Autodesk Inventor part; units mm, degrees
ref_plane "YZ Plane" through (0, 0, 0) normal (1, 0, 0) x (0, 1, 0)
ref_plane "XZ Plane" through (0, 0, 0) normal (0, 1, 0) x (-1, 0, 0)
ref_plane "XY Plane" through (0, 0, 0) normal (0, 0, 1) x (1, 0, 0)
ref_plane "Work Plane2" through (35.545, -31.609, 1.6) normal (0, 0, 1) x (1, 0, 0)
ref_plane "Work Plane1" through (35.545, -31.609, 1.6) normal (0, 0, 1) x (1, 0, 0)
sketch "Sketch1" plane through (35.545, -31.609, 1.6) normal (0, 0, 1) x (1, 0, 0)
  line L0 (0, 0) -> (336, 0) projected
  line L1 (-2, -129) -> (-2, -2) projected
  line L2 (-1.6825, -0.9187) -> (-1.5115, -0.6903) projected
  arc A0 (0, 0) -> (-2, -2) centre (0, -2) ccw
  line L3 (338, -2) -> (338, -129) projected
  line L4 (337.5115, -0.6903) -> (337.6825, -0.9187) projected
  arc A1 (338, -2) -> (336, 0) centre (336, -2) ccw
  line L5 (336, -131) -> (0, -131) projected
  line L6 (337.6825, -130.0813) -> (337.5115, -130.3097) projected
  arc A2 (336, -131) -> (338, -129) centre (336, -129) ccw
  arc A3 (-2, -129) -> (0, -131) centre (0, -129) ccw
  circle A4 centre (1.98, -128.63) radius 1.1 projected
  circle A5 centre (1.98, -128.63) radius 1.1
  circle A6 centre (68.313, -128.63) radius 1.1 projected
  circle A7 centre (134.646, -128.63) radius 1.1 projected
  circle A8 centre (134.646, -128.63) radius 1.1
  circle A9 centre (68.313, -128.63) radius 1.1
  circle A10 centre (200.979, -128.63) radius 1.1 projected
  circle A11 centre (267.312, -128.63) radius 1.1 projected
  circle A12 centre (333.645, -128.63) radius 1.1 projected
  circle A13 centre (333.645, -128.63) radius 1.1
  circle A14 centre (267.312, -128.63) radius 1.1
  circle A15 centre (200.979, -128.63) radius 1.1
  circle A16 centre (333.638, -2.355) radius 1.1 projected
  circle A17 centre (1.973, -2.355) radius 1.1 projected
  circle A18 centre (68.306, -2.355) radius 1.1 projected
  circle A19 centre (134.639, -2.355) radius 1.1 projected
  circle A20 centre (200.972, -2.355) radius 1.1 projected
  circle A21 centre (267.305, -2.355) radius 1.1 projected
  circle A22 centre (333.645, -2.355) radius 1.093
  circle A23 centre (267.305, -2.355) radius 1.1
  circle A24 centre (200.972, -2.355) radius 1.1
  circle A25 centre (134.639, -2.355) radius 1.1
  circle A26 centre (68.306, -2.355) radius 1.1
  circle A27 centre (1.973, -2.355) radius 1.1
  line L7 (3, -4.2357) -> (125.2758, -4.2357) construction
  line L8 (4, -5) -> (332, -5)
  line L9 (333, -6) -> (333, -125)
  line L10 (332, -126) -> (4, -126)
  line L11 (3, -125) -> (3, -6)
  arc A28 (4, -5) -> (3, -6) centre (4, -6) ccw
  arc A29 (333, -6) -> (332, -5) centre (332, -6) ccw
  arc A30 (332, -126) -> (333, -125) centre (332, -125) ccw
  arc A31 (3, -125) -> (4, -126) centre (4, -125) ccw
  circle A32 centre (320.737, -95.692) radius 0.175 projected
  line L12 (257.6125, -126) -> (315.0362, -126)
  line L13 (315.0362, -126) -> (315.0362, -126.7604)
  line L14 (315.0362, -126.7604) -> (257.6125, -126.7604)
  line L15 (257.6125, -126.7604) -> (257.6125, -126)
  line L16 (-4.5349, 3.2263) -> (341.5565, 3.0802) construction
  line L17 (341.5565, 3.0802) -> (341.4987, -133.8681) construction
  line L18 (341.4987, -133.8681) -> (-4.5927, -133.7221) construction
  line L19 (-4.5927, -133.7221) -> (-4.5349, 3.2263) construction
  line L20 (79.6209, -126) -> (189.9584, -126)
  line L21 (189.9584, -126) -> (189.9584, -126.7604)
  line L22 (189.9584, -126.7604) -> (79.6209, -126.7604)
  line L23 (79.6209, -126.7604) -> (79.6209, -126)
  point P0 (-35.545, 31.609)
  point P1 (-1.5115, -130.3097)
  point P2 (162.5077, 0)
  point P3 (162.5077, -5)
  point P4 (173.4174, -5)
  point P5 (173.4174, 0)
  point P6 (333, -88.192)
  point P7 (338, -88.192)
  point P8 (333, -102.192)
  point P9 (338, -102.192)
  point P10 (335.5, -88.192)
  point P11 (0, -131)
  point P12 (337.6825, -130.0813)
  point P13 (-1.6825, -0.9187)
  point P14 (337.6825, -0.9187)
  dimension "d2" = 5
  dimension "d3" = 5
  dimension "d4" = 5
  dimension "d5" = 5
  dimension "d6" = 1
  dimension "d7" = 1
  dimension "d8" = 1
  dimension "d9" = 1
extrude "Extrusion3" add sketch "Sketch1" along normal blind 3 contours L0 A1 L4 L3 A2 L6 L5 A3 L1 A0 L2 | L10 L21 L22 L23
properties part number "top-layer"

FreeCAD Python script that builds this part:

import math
import FreeCAD as App
import Part
import Sketcher
from FreeCAD import Vector
Q = App.Units.Quantity

doc = App.newDocument("Part")
body = doc.addObject("PartDesign::Body", "Body")

sketch1 = body.newObject("Sketcher::SketchObject", "Sketch")
sketch1.AttachmentSupport = (doc.getObject("XY_Plane"), [""])
sketch1.MapMode = "FlatFace"
sketch1.AttachmentOffset = App.Placement(Vector(0, 0, 1.6), App.Rotation())
sketch1.addGeometry([
    Part.LineSegment(Vector(371.55, -31.61, 0), Vector(35.55, -31.61, 0)),
    Part.ArcOfCircle(Part.Circle(Vector(35.55, -33.61, 0), Vector(0, 0, 1), 2), math.radians(90), math.radians(139)),
    Part.LineSegment(Vector(34.03, -32.3, 0), Vector(33.86, -32.53, 0)),
    Part.ArcOfCircle(Part.Circle(Vector(35.55, -33.61, 0), Vector(0, 0, 1), 2), math.radians(147), math.radians(180)),
    Part.LineSegment(Vector(33.55, -33.61, 0), Vector(33.55, -160.61, 0)),
    Part.ArcOfCircle(Part.Circle(Vector(35.55, -160.61, 0), Vector(0, 0, 1), 2), math.radians(180), math.radians(270)),
    Part.LineSegment(Vector(35.55, -162.61, 0), Vector(371.55, -162.61, 0)),
    Part.ArcOfCircle(Part.Circle(Vector(371.55, -160.61, 0), Vector(0, 0, 1), 2), math.radians(-90), math.radians(-41)),
    Part.LineSegment(Vector(373.06, -161.92, 0), Vector(373.23, -161.69, 0)),
    Part.ArcOfCircle(Part.Circle(Vector(371.55, -160.61, 0), Vector(0, 0, 1), 2), math.radians(-33), math.radians(0)),
    Part.LineSegment(Vector(373.55, -160.61, 0), Vector(373.55, -33.61, 0)),
    Part.ArcOfCircle(Part.Circle(Vector(371.55, -33.61, 0), Vector(0, 0, 1), 2), math.radians(0), math.radians(33)),
    Part.LineSegment(Vector(373.23, -32.53, 0), Vector(373.06, -32.3, 0)),
    Part.ArcOfCircle(Part.Circle(Vector(371.55, -33.61, 0), Vector(0, 0, 1), 2), math.radians(41), math.radians(90)),
    Part.Circle(Vector(37.52, -160.24, 0), Vector(0, 0, 1), 1.1),
    Part.Circle(Vector(103.86, -160.24, 0), Vector(0, 0, 1), 1.1),
    Part.Circle(Vector(170.19, -160.24, 0), Vector(0, 0, 1), 1.1),
    Part.Circle(Vector(236.52, -160.24, 0), Vector(0, 0, 1), 1.1),
    Part.Circle(Vector(302.86, -160.24, 0), Vector(0, 0, 1), 1.1),
    Part.Circle(Vector(369.19, -160.24, 0), Vector(0, 0, 1), 1.1),
    Part.ArcOfCircle(Part.Circle(Vector(39.55, -37.61, 0), Vector(0, 0, 1), 1), math.radians(90), math.radians(180)),
    Part.LineSegment(Vector(39.55, -36.61, 0), Vector(367.55, -36.61, 0)),
    Part.ArcOfCircle(Part.Circle(Vector(367.55, -37.61, 0), Vector(0, 0, 1), 1), math.radians(0), math.radians(90)),
    Part.LineSegment(Vector(368.55, -37.61, 0), Vector(368.55, -156.61, 0)),
    Part.ArcOfCircle(Part.Circle(Vector(367.55, -156.61, 0), Vector(0, 0, 1), 1), math.radians(-90), math.radians(0)),
    Part.LineSegment(Vector(367.55, -157.61, 0), Vector(350.58, -157.61, 0)),
    Part.LineSegment(Vector(350.58, -157.61, 0), Vector(350.58, -158.37, 0)),
    Part.LineSegment(Vector(350.58, -158.37, 0), Vector(293.16, -158.37, 0)),
    Part.LineSegment(Vector(293.16, -158.37, 0), Vector(293.16, -157.61, 0)),
    Part.LineSegment(Vector(293.16, -157.61, 0), Vector(39.55, -157.61, 0)),
    Part.ArcOfCircle(Part.Circle(Vector(39.55, -156.61, 0), Vector(0, 0, 1), 1), math.radians(180), math.radians(270)),
    Part.LineSegment(Vector(38.55, -156.61, 0), Vector(38.55, -37.61, 0)),
    Part.Circle(Vector(37.52, -33.96, 0), Vector(0, 0, 1), 1.1),
    Part.Circle(Vector(103.85, -33.96, 0), Vector(0, 0, 1), 1.1),
    Part.Circle(Vector(170.18, -33.96, 0), Vector(0, 0, 1), 1.1),
    Part.Circle(Vector(236.52, -33.96, 0), Vector(0, 0, 1), 1.1),
    Part.Circle(Vector(302.85, -33.96, 0), Vector(0, 0, 1), 1.1),
    Part.Circle(Vector(369.18, -33.96, 0), Vector(0, 0, 1), 1.1),
], False)
sketch1.addConstraint([
    Sketcher.Constraint("Tangent", 0, 2, 1, 1),
    Sketcher.Constraint("Coincident", 1, 2, 2, 1),
    Sketcher.Constraint("Coincident", 2, 2, 3, 1),
    Sketcher.Constraint("Tangent", 3, 2, 4, 1),
    Sketcher.Constraint("Tangent", 4, 2, 5, 1),
    Sketcher.Constraint("Tangent", 5, 2, 6, 1),
    Sketcher.Constraint("Tangent", 6, 2, 7, 1),
    Sketcher.Constraint("Coincident", 7, 2, 8, 1),
    Sketcher.Constraint("Coincident", 8, 2, 9, 1),
    Sketcher.Constraint("Tangent", 9, 2, 10, 1),
    Sketcher.Constraint("Tangent", 10, 2, 11, 1),
    Sketcher.Constraint("Coincident", 11, 2, 12, 1),
    Sketcher.Constraint("Coincident", 12, 2, 13, 1),
    Sketcher.Constraint("Tangent", 13, 2, 0, 1),
    Sketcher.Constraint("Tangent", 20, 1, 21, 1),
    Sketcher.Constraint("Tangent", 21, 2, 22, 2),
    Sketcher.Constraint("Tangent", 22, 1, 23, 1),
    Sketcher.Constraint("Tangent", 23, 2, 24, 2),
    Sketcher.Constraint("Tangent", 24, 1, 25, 1),
    Sketcher.Constraint("Coincident", 25, 2, 26, 1),
    Sketcher.Constraint("Coincident", 26, 2, 27, 1),
    Sketcher.Constraint("Coincident", 27, 2, 28, 1),
    Sketcher.Constraint("Coincident", 28, 2, 29, 1),
    Sketcher.Constraint("Tangent", 29, 2, 30, 2),
    Sketcher.Constraint("Tangent", 30, 1, 31, 1),
    Sketcher.Constraint("Tangent", 31, 2, 20, 2),
    Sketcher.Constraint("Horizontal", 0),
    Sketcher.Constraint("Vertical", 4),
    Sketcher.Constraint("Horizontal", 6),
    Sketcher.Constraint("Vertical", 10),
    Sketcher.Constraint("Horizontal", 21),
    Sketcher.Constraint("Vertical", 23),
    Sketcher.Constraint("Horizontal", 25),
    Sketcher.Constraint("Vertical", 26),
    Sketcher.Constraint("Horizontal", 27),
    Sketcher.Constraint("Vertical", 28),
    Sketcher.Constraint("Horizontal", 29),
    Sketcher.Constraint("Vertical", 31),
    Sketcher.Constraint("Coincident", 3, 3, 1, 3),
    Sketcher.Constraint("Coincident", 9, 3, 7, 3),
    Sketcher.Constraint("Coincident", 13, 3, 11, 3),
    Sketcher.Constraint("Equal", 1, 3),
    Sketcher.Constraint("Equal", 3, 5),
    Sketcher.Constraint("Equal", 5, 7),
    Sketcher.Constraint("Equal", 7, 9),
    Sketcher.Constraint("Equal", 9, 11),
    Sketcher.Constraint("Equal", 11, 13),
    Sketcher.Constraint("Equal", 14, 15),
    Sketcher.Constraint("Equal", 15, 16),
    Sketcher.Constraint("Equal", 16, 17),
    Sketcher.Constraint("Equal", 17, 18),
    Sketcher.Constraint("Equal", 18, 19),
    Sketcher.Constraint("Equal", 20, 22),
    Sketcher.Constraint("Equal", 22, 24),
    Sketcher.Constraint("Equal", 24, 30),
    Sketcher.Constraint("Equal", 19, 32),
    Sketcher.Constraint("Equal", 32, 33),
    Sketcher.Constraint("Equal", 33, 34),
    Sketcher.Constraint("Equal", 34, 35),
    Sketcher.Constraint("Equal", 35, 36),
    Sketcher.Constraint("Equal", 36, 37),
    Sketcher.Constraint("Parallel", 2, 8),
    Sketcher.Constraint("Horizontal", 14, 3, 15, 3),
    Sketcher.Constraint("Horizontal", 15, 3, 16, 3),
    Sketcher.Constraint("Horizontal", 16, 3, 17, 3),
    Sketcher.Constraint("Horizontal", 17, 3, 18, 3),
    Sketcher.Constraint("Horizontal", 18, 3, 19, 3),
    Sketcher.Constraint("Horizontal", 24, 3, 30, 3),
    Sketcher.Constraint("Horizontal", 32, 3, 33, 3),
    Sketcher.Constraint("Horizontal", 33, 3, 34, 3),
    Sketcher.Constraint("Horizontal", 34, 3, 35, 3),
    Sketcher.Constraint("Horizontal", 35, 3, 36, 3),
    Sketcher.Constraint("Horizontal", 36, 3, 37, 3),
    Sketcher.Constraint("Horizontal", 2, 2, 11, 2),
    Sketcher.Constraint("Horizontal", 1, 2, 12, 2),
    Sketcher.Constraint("Vertical", 8, 2, 11, 2),
    Sketcher.Constraint("Radius", 20, Q("1 mm")),
    Sketcher.Constraint("Radius", 1, Q("2 mm")),
    Sketcher.Constraint("DistanceY", 20, 1, 0, 2, Q("5 mm")),
    Sketcher.Constraint("DistanceX", 23, 2, 9, 2, Q("5 mm")),
    Sketcher.Constraint("DistanceY", 5, 2, 29, 2, Q("5 mm")),
    Sketcher.Constraint("DistanceX", 4, 2, 30, 1, Q("5 mm")),
    Sketcher.Constraint("Diameter", 14, Q("2.2 mm")),
    Sketcher.Constraint("DistanceX", 0, 2, 0, 1, Q("336 mm")),
    Sketcher.Constraint("DistanceY", 4, 2, 4, 1, Q("127 mm")),
    Sketcher.Constraint("DistanceX", -1, 1, 19, 3, Q("369.19 mm")),
    Sketcher.Constraint("DistanceX", -1, 1, 36, 3, Q("302.85 mm")),
    Sketcher.Constraint("DistanceX", 5, 3, 14, 3, Q("1.98 mm")),
    Sketcher.Constraint("DistanceY", 5, 3, 14, 3, Q("0.37 mm")),
    Sketcher.Constraint("DistanceX", 25, 2, 25, 1, Q("16.9638 mm")),
    Sketcher.Constraint("DistanceX", 27, 2, 27, 1, Q("57.4237 mm")),
    Sketcher.Constraint("DistanceY", 26, 2, 26, 1, Q("0.7604 mm")),
    Sketcher.Constraint("DistanceX", -1, 1, 1, 3, Q("35.545 mm")),
    Sketcher.Constraint("DistanceY", 1, 3, -1, 1, Q("33.609 mm")),
    Sketcher.Constraint("DistanceX", -1, 1, 15, 3, Q("103.858 mm")),
    Sketcher.Constraint("DistanceX", -1, 1, 16, 3, Q("170.191 mm")),
    Sketcher.Constraint("DistanceX", -1, 1, 17, 3, Q("236.524 mm")),
    Sketcher.Constraint("DistanceX", -1, 1, 18, 3, Q("302.857 mm")),
    Sketcher.Constraint("DistanceX", -1, 1, 32, 3, Q("37.518 mm")),
    Sketcher.Constraint("DistanceY", 32, 3, -1, 1, Q("33.964 mm")),
    Sketcher.Constraint("DistanceX", -1, 1, 33, 3, Q("103.851 mm")),
    Sketcher.Constraint("DistanceX", -1, 1, 34, 3, Q("170.184 mm")),
    Sketcher.Constraint("DistanceX", -1, 1, 35, 3, Q("236.517 mm")),
    Sketcher.Constraint("DistanceX", -1, 1, 37, 3, Q("369.183 mm")),
    Sketcher.Constraint("DistanceX", 2, 2, 1, 2, Q("0.171 mm")),
    Sketcher.Constraint("Distance", 2, Q("0.2853 mm")),
])
pad1 = body.newObject("PartDesign::Pad", "Pad")
pad1.Profile = sketch1
pad1.Length = 3

doc.recompute()
